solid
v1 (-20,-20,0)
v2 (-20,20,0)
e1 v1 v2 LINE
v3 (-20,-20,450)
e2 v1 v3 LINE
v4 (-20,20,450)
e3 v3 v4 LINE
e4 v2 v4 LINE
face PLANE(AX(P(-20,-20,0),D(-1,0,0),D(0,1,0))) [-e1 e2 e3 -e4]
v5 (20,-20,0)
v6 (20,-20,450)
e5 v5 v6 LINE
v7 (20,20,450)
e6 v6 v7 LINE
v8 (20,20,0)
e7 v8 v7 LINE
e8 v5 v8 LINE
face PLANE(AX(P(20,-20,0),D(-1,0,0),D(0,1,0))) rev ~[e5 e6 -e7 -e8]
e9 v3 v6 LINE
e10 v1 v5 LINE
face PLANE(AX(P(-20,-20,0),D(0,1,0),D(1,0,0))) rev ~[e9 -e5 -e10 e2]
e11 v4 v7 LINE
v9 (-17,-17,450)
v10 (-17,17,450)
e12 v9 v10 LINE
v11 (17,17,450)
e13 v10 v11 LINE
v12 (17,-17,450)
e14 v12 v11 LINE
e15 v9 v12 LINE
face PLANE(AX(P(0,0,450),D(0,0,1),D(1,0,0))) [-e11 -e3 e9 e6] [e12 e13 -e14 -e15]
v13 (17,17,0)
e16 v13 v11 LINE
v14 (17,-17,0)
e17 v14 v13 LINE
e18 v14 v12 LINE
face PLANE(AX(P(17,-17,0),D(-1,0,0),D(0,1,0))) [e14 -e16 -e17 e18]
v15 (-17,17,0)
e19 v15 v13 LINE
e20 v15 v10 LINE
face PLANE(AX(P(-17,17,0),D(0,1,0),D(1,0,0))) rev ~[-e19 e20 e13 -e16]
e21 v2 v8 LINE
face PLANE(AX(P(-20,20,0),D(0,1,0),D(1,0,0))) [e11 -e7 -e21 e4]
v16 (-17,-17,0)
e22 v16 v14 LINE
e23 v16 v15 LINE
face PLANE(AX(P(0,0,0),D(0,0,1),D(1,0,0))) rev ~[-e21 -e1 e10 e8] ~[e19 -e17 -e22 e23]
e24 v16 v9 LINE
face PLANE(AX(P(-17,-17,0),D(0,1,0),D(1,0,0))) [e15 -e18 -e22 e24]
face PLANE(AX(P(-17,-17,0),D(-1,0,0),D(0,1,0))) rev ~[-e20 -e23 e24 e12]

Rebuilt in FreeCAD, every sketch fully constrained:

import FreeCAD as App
import Part
import Sketcher

V = App.Vector
Q = App.Units.Quantity

doc = App.newDocument("Part")
body = doc.addObject("PartDesign::Body", "Body")

# Sketch on XY plane
sketch1 = doc.addObject("Sketcher::SketchObject", "Sketch")
body.addObject(sketch1)
sketch1.AttachmentSupport = (doc.XY_Plane, [""])
sketch1.MapMode = "FlatFace"
sketch1.addGeometry([
    Part.LineSegment(V(-20, 20, 0), V(-20, -20, 0)),  # 0
    Part.LineSegment(V(-20, -20, 0), V(20, -20, 0)),  # 1
    Part.LineSegment(V(20, -20, 0), V(20, 20, 0)),  # 2
    Part.LineSegment(V(20, 20, 0), V(-20, 20, 0)),  # 3
    Part.LineSegment(V(17, -17, 0), V(-17, -17, 0)),  # 4
    Part.LineSegment(V(-17, -17, 0), V(-17, 17, 0)),  # 5
    Part.LineSegment(V(-17, 17, 0), V(17, 17, 0)),  # 6
    Part.LineSegment(V(17, 17, 0), V(17, -17, 0)),  # 7
], False)
sketch1.addConstraint([
    Sketcher.Constraint("Coincident", 0, 2, 1, 1),
    Sketcher.Constraint("Coincident", 1, 2, 2, 1),
    Sketcher.Constraint("Coincident", 2, 2, 3, 1),
    Sketcher.Constraint("Coincident", 3, 2, 0, 1),
    Sketcher.Constraint("Coincident", 4, 2, 5, 1),
    Sketcher.Constraint("Coincident", 5, 2, 6, 1),
    Sketcher.Constraint("Coincident", 6, 2, 7, 1),
    Sketcher.Constraint("Coincident", 7, 2, 4, 1),
    Sketcher.Constraint("Vertical", 0),
    Sketcher.Constraint("Horizontal", 1),
    Sketcher.Constraint("Vertical", 2),
    Sketcher.Constraint("Horizontal", 3),
    Sketcher.Constraint("Horizontal", 4),
    Sketcher.Constraint("Vertical", 5),
    Sketcher.Constraint("Horizontal", 6),
    Sketcher.Constraint("Vertical", 7),
    Sketcher.Constraint("Symmetric", 0, 2, 2, 2, -1, 1),
    Sketcher.Constraint("Symmetric", 4, 2, 6, 2, -1, 1),
    Sketcher.Constraint("Equal", 3, 0),
    Sketcher.Constraint("Equal", 6, 5),
    Sketcher.Constraint("DistanceX", 1, 1, 1, 2, Q("40 mm")),
    Sketcher.Constraint("DistanceX", 4, 2, 4, 1, Q("34 mm")),
])
pad1 = doc.addObject("PartDesign::Pad", "Pad")
body.addObject(pad1)
pad1.Profile = sketch1
pad1.Length = 450

doc.recompute()
